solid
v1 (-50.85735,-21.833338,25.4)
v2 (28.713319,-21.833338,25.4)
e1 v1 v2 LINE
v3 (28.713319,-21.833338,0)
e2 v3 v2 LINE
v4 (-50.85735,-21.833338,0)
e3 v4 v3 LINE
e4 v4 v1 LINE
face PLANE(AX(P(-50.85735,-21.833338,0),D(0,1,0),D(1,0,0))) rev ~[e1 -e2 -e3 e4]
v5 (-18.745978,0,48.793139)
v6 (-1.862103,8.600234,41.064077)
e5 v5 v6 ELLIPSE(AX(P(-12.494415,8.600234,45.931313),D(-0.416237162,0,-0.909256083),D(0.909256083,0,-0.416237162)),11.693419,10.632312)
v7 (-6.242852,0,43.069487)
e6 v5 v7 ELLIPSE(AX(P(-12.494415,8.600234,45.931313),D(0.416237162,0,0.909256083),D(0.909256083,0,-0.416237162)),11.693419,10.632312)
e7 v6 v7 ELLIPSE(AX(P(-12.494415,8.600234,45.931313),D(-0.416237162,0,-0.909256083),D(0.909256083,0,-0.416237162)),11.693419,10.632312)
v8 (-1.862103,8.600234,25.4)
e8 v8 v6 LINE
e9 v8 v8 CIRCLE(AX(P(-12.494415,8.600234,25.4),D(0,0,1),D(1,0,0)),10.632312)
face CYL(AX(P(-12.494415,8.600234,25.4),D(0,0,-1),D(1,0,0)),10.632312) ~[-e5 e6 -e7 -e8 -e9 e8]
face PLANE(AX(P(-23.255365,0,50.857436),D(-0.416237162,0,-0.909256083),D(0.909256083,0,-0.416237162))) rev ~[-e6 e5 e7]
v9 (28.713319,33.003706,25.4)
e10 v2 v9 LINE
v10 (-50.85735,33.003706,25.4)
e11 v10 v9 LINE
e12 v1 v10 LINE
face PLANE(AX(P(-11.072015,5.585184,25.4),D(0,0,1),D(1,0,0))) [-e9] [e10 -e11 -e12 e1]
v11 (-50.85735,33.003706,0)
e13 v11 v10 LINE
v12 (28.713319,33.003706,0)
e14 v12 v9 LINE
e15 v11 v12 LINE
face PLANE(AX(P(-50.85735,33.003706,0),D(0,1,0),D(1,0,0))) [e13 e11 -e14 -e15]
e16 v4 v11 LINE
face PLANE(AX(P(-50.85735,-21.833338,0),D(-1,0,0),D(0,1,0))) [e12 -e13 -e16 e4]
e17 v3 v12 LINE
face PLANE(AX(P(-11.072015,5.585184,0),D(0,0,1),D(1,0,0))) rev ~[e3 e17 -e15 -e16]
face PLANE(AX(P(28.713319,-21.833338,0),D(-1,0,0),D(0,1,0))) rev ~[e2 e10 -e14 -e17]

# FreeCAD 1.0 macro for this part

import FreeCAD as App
import Part
import Sketcher
Q = App.Units.Quantity


def add_polygon(sketch, points):
    """Adds a closed chain of lines whose ends are joined by coincident constraints."""
    first, n = sketch.GeometryCount, len(points)
    for a, b in zip(points, points[1:] + points[:1]):
        sketch.addGeometry(Part.LineSegment(App.Vector(*a, 0), App.Vector(*b, 0)), False)
    for i in range(n):
        sketch.addConstraint(Sketcher.Constraint("Coincident", first + i, 2, first + (i + 1) % n, 1))

doc = App.newDocument("Part")
body = doc.addObject("PartDesign::Body", "Body")

# Sketch on XY plane
sketch1 = body.newObject("Sketcher::SketchObject", "Sketch")
sketch1.AttachmentSupport = (doc.getObject("XY_Plane"), [""])
sketch1.MapMode = "FlatFace"
add_polygon(sketch1, [(-51, 33), (-51, -22), (29, -22), (29, 33)])  # lines 0-3
sketch1.addConstraint(Sketcher.Constraint("Vertical", 0))
sketch1.addConstraint(Sketcher.Constraint("Horizontal", 1))
sketch1.addConstraint(Sketcher.Constraint("Vertical", 2))
sketch1.addConstraint(Sketcher.Constraint("Horizontal", 3))
sketch1.addConstraint(Sketcher.Constraint("DistanceX", 1, 1, 1, 2, Q("79.57067 mm")))
sketch1.addConstraint(Sketcher.Constraint("DistanceY", 0, 2, 0, 1, Q("54.837044 mm")))
sketch1.addConstraint(Sketcher.Constraint("DistanceX", 0, 2, -1, 1, Q("50.85735 mm")))
sketch1.addConstraint(Sketcher.Constraint("DistanceY", 0, 2, -1, 1, Q("21.833338 mm")))
pad1 = body.newObject("PartDesign::Pad", "Pad")
pad1.Profile = sketch1
pad1.Length = Q("1 in")

# Sketch on XY plane
sketch2 = body.newObject("Sketcher::SketchObject", "Sketch001")
sketch2.AttachmentSupport = (doc.getObject("XY_Plane"), [""])
sketch2.MapMode = "FlatFace"
sketch2.AttachmentOffset = App.Placement(App.Vector(0, 0, 1 * 25.4), App.Rotation())
sketch2.addGeometry(Part.Circle(App.Vector(-12, 9, 0), App.Vector(0, 0, 1), 11), False)
sketch2.addConstraint(Sketcher.Constraint("Diameter", 0, Q("21.264625 mm")))
sketch2.addConstraint(Sketcher.Constraint("DistanceX", 0, 3, -1, 1, Q("12.494415 mm")))
sketch2.addConstraint(Sketcher.Constraint("DistanceY", -1, 1, 0, 3, Q("8.600234 mm")))
pad2 = body.newObject("PartDesign::Pad", "Pad001")
pad2.Profile = sketch2
pad2.Length = Q("1 in")

# Sketch on XZ plane
sketch3 = body.newObject("Sketcher::SketchObject", "Sketch002")
sketch3.AttachmentSupport = (doc.getObject("XZ_Plane"), [""])
sketch3.MapMode = "FlatFace"
add_polygon(sketch3, [(-1, 51), (-23, 51), (-1, 41)])  # lines 0-2
sketch3.addConstraint(Sketcher.Constraint("Horizontal", 0))
sketch3.addConstraint(Sketcher.Constraint("Vertical", 2))
sketch3.addConstraint(Sketcher.Constraint("Distance", 1, Q("24.02425 mm")))
sketch3.addConstraint(Sketcher.Constraint("DistanceX", 0, 2, 0, 1, Q("21.844195 mm")))
sketch3.addConstraint(Sketcher.Constraint("DistanceX", 1, 2, -1, 1, Q("1.41117 mm")))
sketch3.addConstraint(Sketcher.Constraint("DistanceY", -1, 1, 1, 2, Q("40.85765 mm")))
pocket1 = body.newObject("PartDesign::Pocket", "Pocket")
pocket1.Profile = sketch3
pocket1.Type = "ThroughAll"
pocket1.Midplane = True

doc.recompute()
